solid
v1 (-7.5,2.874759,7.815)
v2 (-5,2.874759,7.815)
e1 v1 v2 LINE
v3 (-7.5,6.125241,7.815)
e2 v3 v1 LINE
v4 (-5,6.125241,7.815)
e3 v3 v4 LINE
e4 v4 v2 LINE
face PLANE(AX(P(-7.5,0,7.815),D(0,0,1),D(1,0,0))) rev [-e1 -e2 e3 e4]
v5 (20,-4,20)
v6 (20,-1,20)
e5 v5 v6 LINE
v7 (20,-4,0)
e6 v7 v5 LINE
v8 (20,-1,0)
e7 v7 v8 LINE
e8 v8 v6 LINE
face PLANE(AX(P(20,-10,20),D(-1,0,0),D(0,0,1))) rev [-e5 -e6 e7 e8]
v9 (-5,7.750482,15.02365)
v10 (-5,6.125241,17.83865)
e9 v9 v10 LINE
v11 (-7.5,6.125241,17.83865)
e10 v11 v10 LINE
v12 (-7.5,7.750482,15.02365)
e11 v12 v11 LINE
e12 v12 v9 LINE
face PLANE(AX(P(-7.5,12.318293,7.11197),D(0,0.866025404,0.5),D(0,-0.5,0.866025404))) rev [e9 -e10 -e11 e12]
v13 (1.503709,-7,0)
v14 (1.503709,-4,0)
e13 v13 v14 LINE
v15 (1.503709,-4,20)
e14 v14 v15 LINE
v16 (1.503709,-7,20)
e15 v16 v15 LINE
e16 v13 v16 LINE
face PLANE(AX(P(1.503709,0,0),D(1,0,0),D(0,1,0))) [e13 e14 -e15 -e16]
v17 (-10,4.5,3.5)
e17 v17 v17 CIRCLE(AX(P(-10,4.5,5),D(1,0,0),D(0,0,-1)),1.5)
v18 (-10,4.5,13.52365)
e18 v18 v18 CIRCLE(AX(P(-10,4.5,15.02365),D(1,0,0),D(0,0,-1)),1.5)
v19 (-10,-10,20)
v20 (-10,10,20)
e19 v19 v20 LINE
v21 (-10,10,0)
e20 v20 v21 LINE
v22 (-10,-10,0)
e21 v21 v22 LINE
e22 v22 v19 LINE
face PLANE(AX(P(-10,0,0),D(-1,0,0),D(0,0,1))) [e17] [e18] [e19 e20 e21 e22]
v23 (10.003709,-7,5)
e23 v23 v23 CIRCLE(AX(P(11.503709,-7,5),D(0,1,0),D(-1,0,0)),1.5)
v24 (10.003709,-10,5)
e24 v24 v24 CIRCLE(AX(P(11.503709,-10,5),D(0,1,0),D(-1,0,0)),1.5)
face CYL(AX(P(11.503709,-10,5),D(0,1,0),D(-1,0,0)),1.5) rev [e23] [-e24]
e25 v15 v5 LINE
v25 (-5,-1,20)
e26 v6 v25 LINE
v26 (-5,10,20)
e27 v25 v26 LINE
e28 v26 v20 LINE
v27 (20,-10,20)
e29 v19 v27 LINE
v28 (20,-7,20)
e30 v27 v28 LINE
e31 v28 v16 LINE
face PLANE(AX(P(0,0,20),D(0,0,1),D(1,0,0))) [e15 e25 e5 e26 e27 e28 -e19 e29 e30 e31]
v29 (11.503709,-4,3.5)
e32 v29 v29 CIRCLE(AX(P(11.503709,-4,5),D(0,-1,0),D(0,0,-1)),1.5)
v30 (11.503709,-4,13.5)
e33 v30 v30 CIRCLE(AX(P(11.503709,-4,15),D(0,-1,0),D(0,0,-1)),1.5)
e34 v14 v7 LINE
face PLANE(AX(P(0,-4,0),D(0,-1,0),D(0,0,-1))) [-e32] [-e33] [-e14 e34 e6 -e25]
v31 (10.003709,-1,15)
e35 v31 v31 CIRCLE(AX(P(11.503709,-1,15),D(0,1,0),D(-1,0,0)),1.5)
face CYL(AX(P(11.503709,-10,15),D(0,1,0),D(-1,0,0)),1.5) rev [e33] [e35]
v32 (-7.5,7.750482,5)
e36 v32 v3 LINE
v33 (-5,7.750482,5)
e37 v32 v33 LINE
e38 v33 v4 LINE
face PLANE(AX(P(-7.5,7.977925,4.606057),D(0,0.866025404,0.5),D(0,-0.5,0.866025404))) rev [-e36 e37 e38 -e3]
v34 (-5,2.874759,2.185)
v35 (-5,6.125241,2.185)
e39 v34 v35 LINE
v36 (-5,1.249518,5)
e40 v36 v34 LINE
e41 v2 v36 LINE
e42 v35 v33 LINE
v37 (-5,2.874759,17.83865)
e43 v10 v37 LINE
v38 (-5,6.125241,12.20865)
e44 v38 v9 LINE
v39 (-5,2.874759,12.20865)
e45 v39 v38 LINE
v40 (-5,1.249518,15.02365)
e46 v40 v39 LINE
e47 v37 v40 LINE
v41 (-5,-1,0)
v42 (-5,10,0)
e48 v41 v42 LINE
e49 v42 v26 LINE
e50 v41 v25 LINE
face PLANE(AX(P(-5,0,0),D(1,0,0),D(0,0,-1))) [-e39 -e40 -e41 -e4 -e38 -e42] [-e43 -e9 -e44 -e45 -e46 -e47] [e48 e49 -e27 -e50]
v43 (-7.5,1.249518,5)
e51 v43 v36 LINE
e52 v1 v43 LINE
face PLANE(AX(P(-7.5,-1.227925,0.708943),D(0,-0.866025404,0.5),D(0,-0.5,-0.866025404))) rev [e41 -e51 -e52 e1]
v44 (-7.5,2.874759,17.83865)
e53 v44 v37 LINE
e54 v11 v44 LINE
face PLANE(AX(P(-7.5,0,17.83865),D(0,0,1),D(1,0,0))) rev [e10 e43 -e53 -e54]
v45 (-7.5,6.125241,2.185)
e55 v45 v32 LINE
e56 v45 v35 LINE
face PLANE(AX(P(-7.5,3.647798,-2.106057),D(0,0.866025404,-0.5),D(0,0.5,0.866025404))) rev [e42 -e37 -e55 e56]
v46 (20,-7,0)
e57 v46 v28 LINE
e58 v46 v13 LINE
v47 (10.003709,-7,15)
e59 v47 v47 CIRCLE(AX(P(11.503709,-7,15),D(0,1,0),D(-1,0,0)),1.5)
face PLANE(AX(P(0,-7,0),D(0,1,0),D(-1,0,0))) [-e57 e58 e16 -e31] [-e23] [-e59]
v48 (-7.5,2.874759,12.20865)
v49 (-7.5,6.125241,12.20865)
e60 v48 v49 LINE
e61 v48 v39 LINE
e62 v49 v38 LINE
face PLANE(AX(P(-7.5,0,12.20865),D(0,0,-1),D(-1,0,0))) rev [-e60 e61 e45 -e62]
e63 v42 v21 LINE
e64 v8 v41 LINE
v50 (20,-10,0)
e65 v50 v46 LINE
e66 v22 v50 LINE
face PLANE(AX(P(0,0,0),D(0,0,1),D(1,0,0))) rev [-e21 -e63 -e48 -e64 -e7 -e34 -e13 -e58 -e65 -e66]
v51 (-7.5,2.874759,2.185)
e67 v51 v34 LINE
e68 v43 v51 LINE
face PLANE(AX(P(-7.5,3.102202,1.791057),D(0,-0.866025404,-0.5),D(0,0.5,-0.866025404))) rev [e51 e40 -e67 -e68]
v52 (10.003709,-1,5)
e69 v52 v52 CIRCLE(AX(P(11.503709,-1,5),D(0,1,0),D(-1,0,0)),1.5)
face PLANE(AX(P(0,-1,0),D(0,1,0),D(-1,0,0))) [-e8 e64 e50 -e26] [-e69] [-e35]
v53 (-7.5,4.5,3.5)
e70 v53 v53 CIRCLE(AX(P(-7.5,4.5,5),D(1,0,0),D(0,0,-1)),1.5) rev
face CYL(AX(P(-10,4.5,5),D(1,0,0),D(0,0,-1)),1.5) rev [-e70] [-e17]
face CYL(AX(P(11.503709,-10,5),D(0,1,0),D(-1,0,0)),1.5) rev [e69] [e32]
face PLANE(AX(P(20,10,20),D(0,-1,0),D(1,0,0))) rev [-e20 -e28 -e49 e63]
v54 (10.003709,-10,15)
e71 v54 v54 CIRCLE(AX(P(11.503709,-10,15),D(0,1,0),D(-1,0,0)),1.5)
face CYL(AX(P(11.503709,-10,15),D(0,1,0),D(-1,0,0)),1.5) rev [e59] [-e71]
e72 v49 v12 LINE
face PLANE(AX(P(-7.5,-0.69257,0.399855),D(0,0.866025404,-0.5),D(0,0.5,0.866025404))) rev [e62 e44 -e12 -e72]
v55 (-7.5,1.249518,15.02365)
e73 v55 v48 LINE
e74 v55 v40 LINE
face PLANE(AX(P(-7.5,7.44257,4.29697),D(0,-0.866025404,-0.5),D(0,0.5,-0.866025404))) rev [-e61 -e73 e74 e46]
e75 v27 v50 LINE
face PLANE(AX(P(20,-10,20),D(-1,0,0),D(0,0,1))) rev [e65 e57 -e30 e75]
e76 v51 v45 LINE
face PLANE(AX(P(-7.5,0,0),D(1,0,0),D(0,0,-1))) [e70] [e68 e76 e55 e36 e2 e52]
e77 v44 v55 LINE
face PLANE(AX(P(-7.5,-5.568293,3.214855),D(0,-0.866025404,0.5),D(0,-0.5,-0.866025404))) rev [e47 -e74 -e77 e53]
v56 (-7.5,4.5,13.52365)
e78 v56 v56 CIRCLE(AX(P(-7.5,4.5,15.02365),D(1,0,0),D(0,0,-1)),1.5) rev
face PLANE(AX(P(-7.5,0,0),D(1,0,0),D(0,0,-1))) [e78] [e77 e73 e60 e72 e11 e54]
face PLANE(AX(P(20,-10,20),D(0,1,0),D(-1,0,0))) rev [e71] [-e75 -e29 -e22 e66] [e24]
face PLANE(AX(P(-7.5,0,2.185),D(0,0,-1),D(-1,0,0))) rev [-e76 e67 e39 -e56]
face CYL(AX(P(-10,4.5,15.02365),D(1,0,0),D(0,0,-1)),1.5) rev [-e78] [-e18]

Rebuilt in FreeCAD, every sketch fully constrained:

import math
import FreeCAD as App
import Part
import Sketcher
Q = App.Units.Quantity


def add_polygon(sketch, points):
    """Adds a closed chain of lines whose ends are joined by coincident constraints."""
    first, n = sketch.GeometryCount, len(points)
    for a, b in zip(points, points[1:] + points[:1]):
        sketch.addGeometry(Part.LineSegment(App.Vector(*a, 0), App.Vector(*b, 0)), False)
    for i in range(n):
        sketch.addConstraint(Sketcher.Constraint("Coincident", first + i, 2, first + (i + 1) % n, 1))

doc = App.newDocument("Part")
body = doc.addObject("PartDesign::Body", "Body")

# Sketch on XY plane
sketch1 = body.newObject("Sketcher::SketchObject", "Sketch")
sketch1.AttachmentSupport = (doc.getObject("XY_Plane"), [""])
sketch1.MapMode = "FlatFace"
add_polygon(sketch1, [(-20, 10), (-20, -10), (20, -10), (20, 10)])  # lines 0-3
sketch1.addConstraint(Sketcher.Constraint("Vertical", 0))
sketch1.addConstraint(Sketcher.Constraint("Horizontal", 1))
sketch1.addConstraint(Sketcher.Constraint("Vertical", 2))
sketch1.addConstraint(Sketcher.Constraint("Horizontal", 3))
sketch1.addConstraint(Sketcher.Constraint("Symmetric", 0, 2, 2, 2, -1, 1))
sketch1.addConstraint(Sketcher.Constraint("DistanceX", 1, 1, 1, 2, Q("40 mm")))
sketch1.addConstraint(Sketcher.Constraint("DistanceY", 0, 2, 0, 1, Q("20 mm")))
pad1 = body.newObject("PartDesign::Pad", "Pad")
pad1.Profile = sketch1
pad1.Length = 20

# Sketch on YZ plane
sketch2 = body.newObject("Sketcher::SketchObject", "Sketch001")
sketch2.AttachmentSupport = (doc.getObject("YZ_Plane"), [""])
sketch2.MapMode = "FlatFace"
sketch2.AttachmentOffset = App.Placement(App.Vector(0, 0, -20), App.Rotation())
add_polygon(sketch2, [(10, 0), (-10, 0), (-10, 20), (10, 20)])  # lines 0-3
sketch2.addConstraint(Sketcher.Constraint("Horizontal", 0))
sketch2.addConstraint(Sketcher.Constraint("Vertical", 1))
sketch2.addConstraint(Sketcher.Constraint("Horizontal", 2))
sketch2.addConstraint(Sketcher.Constraint("Vertical", 3))
sketch2.addConstraint(Sketcher.Constraint("Symmetric", 0, 2, 3, 2, -1, 1))
sketch2.addConstraint(Sketcher.Constraint("Equal", 2, 1))
sketch2.addConstraint(Sketcher.Constraint("DistanceX", 0, 2, 0, 1, Q("20 mm")))
pocket1 = body.newObject("PartDesign::Pocket", "Pocket")
pocket1.Profile = sketch2
pocket1.Length = 10
pocket1.Reversed = True

# Sketch on XY plane
sketch3 = body.newObject("Sketcher::SketchObject", "Sketch002")
sketch3.AttachmentSupport = (doc.getObject("XY_Plane"), [""])
sketch3.MapMode = "FlatFace"
sketch3.AttachmentOffset = App.Placement(App.Vector(0, 0, 20), App.Rotation())
add_polygon(sketch3, [(-5, -1), (20, -1), (20, 10), (-5, 10)])  # lines 0-3
add_polygon(sketch3, [(1.503709, -4), (1.503709, -7), (20, -7), (20, -4)])  # lines 4-7
sketch3.addConstraint(Sketcher.Constraint("Horizontal", 0))
sketch3.addConstraint(Sketcher.Constraint("Vertical", 1))
sketch3.addConstraint(Sketcher.Constraint("Horizontal", 2))
sketch3.addConstraint(Sketcher.Constraint("Vertical", 3))
sketch3.addConstraint(Sketcher.Constraint("Vertical", 4))
sketch3.addConstraint(Sketcher.Constraint("Horizontal", 5))
sketch3.addConstraint(Sketcher.Constraint("Vertical", 6))
sketch3.addConstraint(Sketcher.Constraint("Horizontal", 7))
sketch3.addConstraint(Sketcher.Constraint("Vertical", 1, 2, 5, 2))
sketch3.addConstraint(Sketcher.Constraint("DistanceX", 0, 1, 0, 2, Q("25 mm")))
sketch3.addConstraint(Sketcher.Constraint("DistanceY", 1, 1, 1, 2, Q("11 mm")))
sketch3.addConstraint(Sketcher.Constraint("DistanceY", 4, 2, 4, 1, Q("3 mm")))
sketch3.addConstraint(Sketcher.Constraint("DistanceX", -1, 1, 0, 2, Q("20 mm")))
sketch3.addConstraint(Sketcher.Constraint("DistanceY", 0, 2, -1, 1, Q("1 mm")))
sketch3.addConstraint(Sketcher.Constraint("DistanceY", 4, 2, -1, 1, Q("7 mm")))
sketch3.addConstraint(Sketcher.Constraint("DistanceX", 5, 1, 5, 2, Q("18.496291 mm")))
pocket2 = body.newObject("PartDesign::Pocket", "Pocket001")
pocket2.Profile = sketch3
pocket2.Type = "ThroughAll"

# Sketch on YZ plane
sketch4 = body.newObject("Sketcher::SketchObject", "Sketch003")
sketch4.AttachmentSupport = (doc.getObject("YZ_Plane"), [""])
sketch4.MapMode = "FlatFace"
sketch4.AttachmentOffset = App.Placement(App.Vector(0, 0, -5), App.Rotation())
sketch4.addGeometry(Part.Circle(App.Vector(4.5, 15.02365, 0), App.Vector(0, 0, 1), 1.5), False)
sketch4.addGeometry(Part.Circle(App.Vector(4.5, 5, 0), App.Vector(0, 0, 1), 1.5), False)
sketch4.addConstraint(Sketcher.Constraint("Equal", 0, 1))
sketch4.addConstraint(Sketcher.Constraint("Vertical", 0, 3, 1, 3))
sketch4.addConstraint(Sketcher.Constraint("Diameter", 0, Q("3 mm")))
sketch4.addConstraint(Sketcher.Constraint("DistanceY", -1, 1, 1, 3, Q("5 mm")))
sketch4.addConstraint(Sketcher.Constraint("DistanceX", -1, 1, 0, 3, Q("4.5 mm")))
sketch4.addConstraint(Sketcher.Constraint("DistanceY", -1, 1, 0, 3, Q("15.02365 mm")))
pocket3 = body.newObject("PartDesign::Pocket", "Pocket002")
pocket3.Profile = sketch4
pocket3.Type = "ThroughAll"

# Sketch on YZ plane
sketch5 = body.newObject("Sketcher::SketchObject", "Sketch004")
sketch5.AttachmentSupport = (doc.getObject("YZ_Plane"), [""])
sketch5.MapMode = "FlatFace"
sketch5.AttachmentOffset = App.Placement(App.Vector(0, 0, -5), App.Rotation())
add_polygon(sketch5, [(2.874759, 12.20865), (6.125241, 12.20865), (7.750482, 15.02365), (6.125241, 17.83865), (2.874759, 17.83865), (1.249518, 15.02365)])  # lines 0-5
sketch5.addGeometry(Part.Circle(App.Vector(4.5, 15.02365, 0), App.Vector(0, 0, 1), 1.5), False)  # 6
add_polygon(sketch5, [(2.874759, 2.185), (6.125241, 2.185), (7.750482, 5), (6.125241, 7.815), (2.874759, 7.815), (1.249518, 5)])  # lines 7-12
sketch5.addGeometry(Part.Circle(App.Vector(4.5, 5, 0), App.Vector(0, 0, 1), 1.5), False)  # 13
sketch5.addConstraint(Sketcher.Constraint("Horizontal", 0))
sketch5.addConstraint(Sketcher.Constraint("Horizontal", 3))
sketch5.addConstraint(Sketcher.Constraint("Horizontal", 7))
sketch5.addConstraint(Sketcher.Constraint("Horizontal", 10))
sketch5.addConstraint(Sketcher.Constraint("Equal", 6, 13))
sketch5.addConstraint(Sketcher.Constraint("Parallel", 1, 4))
sketch5.addConstraint(Sketcher.Constraint("Parallel", 2, 5))
sketch5.addConstraint(Sketcher.Constraint("Parallel", 4, 8))
sketch5.addConstraint(Sketcher.Constraint("Parallel", 5, 9))
sketch5.addConstraint(Sketcher.Constraint("Parallel", 8, 11))
sketch5.addConstraint(Sketcher.Constraint("Parallel", 9, 12))
sketch5.addConstraint(Sketcher.Constraint("Horizontal", 6, 3, 1, 2))
sketch5.addConstraint(Sketcher.Constraint("Horizontal", 1, 2, 4, 2))
sketch5.addConstraint(Sketcher.Constraint("Horizontal", 13, 3, 8, 2))
sketch5.addConstraint(Sketcher.Constraint("Horizontal", 8, 2, 11, 2))
sketch5.addConstraint(Sketcher.Constraint("Vertical", 6, 3, 13, 3))
sketch5.addConstraint(Sketcher.Constraint("Vertical", 0, 2, 2, 2))
sketch5.addConstraint(Sketcher.Constraint("Vertical", 3, 2, 5, 2))
sketch5.addConstraint(Sketcher.Constraint("Vertical", 2, 2, 7, 2))
sketch5.addConstraint(Sketcher.Constraint("Vertical", 1, 2, 8, 2))
sketch5.addConstraint(Sketcher.Constraint("Vertical", 7, 2, 9, 2))
sketch5.addConstraint(Sketcher.Constraint("Vertical", 5, 2, 10, 2))
sketch5.addConstraint(Sketcher.Constraint("Diameter", 6, Q("3 mm")))
sketch5.addConstraint(Sketcher.Constraint("Angle", 1, Q("60 deg")))
sketch5.addConstraint(Sketcher.Constraint("DistanceY", -1, 1, 13, 3, Q("5 mm")))
sketch5.addConstraint(Sketcher.Constraint("DistanceX", -1, 1, 6, 3, Q("4.5 mm")))
sketch5.addConstraint(Sketcher.Constraint("DistanceY", 0, 2, 2, 2, Q("5.63 mm")))
sketch5.addConstraint(Sketcher.Constraint("DistanceX", 0, 1, 0, 2, Q("3.250482 mm")))
sketch5.addConstraint(Sketcher.Constraint("DistanceY", -1, 1, 6, 3, Q("15.02365 mm")))
sketch5.addConstraint(Sketcher.Constraint("DistanceX", -1, 1, 0, 2, Q("6.125241 mm")))
pocket4 = body.newObject("PartDesign::Pocket", "Pocket003")
pocket4.Profile = sketch5
pocket4.Length = 2.5

# Sketch on XZ plane
sketch6 = body.newObject("Sketcher::SketchObject", "Sketch005")
sketch6.AttachmentSupport = (doc.getObject("XZ_Plane"), [""])
sketch6.MapMode = "FlatFace"
sketch6.AttachmentOffset = App.Placement(App.Vector(0, 0, 1), App.Rotation())
sketch6.addGeometry(Part.ArcOfCircle(Part.Circle(App.Vector(11.503709, 5, 0), App.Vector(0, 0, 1), 1.5), math.radians(90), math.radians(270)), False)
sketch6.addGeometry(Part.ArcOfCircle(Part.Circle(App.Vector(11.503709, 5, 0), App.Vector(0, 0, 1), 1.5), math.radians(0), math.radians(90)), False)
sketch6.addGeometry(Part.ArcOfCircle(Part.Circle(App.Vector(11.503709, 5, 0), App.Vector(0, 0, 1), 1.5), math.radians(-90), math.radians(0)), False)
sketch6.addGeometry(Part.ArcOfCircle(Part.Circle(App.Vector(11.503709, 15, 0), App.Vector(0, 0, 1), 1.5), math.radians(90), math.radians(270)), False)
sketch6.addGeometry(Part.ArcOfCircle(Part.Circle(App.Vector(11.503709, 15, 0), App.Vector(0, 0, 1), 1.5), math.radians(0), math.radians(90)), False)
sketch6.addGeometry(Part.ArcOfCircle(Part.Circle(App.Vector(11.503709, 15, 0), App.Vector(0, 0, 1), 1.5), math.radians(-90), math.radians(0)), False)
sketch6.addConstraint(Sketcher.Constraint("Tangent", 0, 1, 1, 2))
sketch6.addConstraint(Sketcher.Constraint("Tangent", 1, 1, 2, 2))
sketch6.addConstraint(Sketcher.Constraint("Tangent", 2, 1, 0, 2))
sketch6.addConstraint(Sketcher.Constraint("Tangent", 3, 1, 4, 2))
sketch6.addConstraint(Sketcher.Constraint("Tangent", 4, 1, 5, 2))
sketch6.addConstraint(Sketcher.Constraint("Tangent", 5, 1, 3, 2))
sketch6.addConstraint(Sketcher.Constraint("Equal", 2, 3))
sketch6.addConstraint(Sketcher.Constraint("Horizontal", 2, 3, 1, 1))
sketch6.addConstraint(Sketcher.Constraint("Horizontal", 5, 3, 4, 1))
sketch6.addConstraint(Sketcher.Constraint("Vertical", 2, 3, 3, 3))
sketch6.addConstraint(Sketcher.Constraint("Vertical", 5, 3, 0, 1))
sketch6.addConstraint(Sketcher.Constraint("Vertical", 0, 1, 2, 1))
sketch6.addConstraint(Sketcher.Constraint("Vertical", 2, 1, 3, 1))
sketch6.addConstraint(Sketcher.Constraint("Vertical", 3, 1, 5, 1))
sketch6.addConstraint(Sketcher.Constraint("Radius", 0, Q("1.5 mm")))
sketch6.addConstraint(Sketcher.Constraint("DistanceY", -1, 1, 0, 3, Q("5 mm")))
sketch6.addConstraint(Sketcher.Constraint("DistanceY", -1, 1, 3, 3, Q("15 mm")))
sketch6.addConstraint(Sketcher.Constraint("DistanceX", -1, 1, 0, 3, Q("11.503709 mm")))
pocket5 = body.newObject("PartDesign::Pocket", "Pocket004")
pocket5.Profile = sketch6
pocket5.Type = "ThroughAll"
pocket5.Reversed = True

doc.recompute()
